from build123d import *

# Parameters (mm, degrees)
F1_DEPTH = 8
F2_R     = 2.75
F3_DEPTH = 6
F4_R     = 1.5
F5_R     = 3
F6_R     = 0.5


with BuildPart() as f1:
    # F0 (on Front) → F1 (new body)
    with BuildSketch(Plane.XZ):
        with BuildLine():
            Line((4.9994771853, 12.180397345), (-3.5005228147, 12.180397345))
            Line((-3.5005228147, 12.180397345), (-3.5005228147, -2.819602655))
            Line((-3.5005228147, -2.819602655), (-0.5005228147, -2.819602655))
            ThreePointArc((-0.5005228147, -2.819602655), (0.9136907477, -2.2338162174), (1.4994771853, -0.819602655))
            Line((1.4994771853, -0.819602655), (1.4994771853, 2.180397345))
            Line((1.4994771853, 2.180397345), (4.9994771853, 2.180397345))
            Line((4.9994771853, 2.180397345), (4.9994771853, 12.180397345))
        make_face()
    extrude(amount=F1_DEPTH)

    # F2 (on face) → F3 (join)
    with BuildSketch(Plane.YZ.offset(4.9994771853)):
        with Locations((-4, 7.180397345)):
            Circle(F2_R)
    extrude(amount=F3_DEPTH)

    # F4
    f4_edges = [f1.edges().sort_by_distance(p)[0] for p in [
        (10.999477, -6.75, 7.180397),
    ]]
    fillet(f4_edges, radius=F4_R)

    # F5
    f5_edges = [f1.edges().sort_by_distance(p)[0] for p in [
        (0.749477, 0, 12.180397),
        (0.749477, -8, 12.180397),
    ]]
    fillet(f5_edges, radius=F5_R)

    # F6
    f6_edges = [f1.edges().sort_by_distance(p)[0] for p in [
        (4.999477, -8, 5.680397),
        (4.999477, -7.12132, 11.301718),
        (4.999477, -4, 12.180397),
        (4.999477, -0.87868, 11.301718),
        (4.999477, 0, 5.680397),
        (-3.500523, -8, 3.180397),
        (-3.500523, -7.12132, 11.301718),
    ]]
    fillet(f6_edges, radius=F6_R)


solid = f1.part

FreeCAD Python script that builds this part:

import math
import FreeCAD as App
import Part
import Sketcher
from FreeCAD import Vector


def edges_at(feature, points):
    """Names of the edges that pass closest to the given points."""
    edges = feature.Shape.Edges
    near = lambda p: min(range(len(edges)), key=lambda i: edges[i].distToShape(Part.Vertex(*p))[0])
    return sorted({f"Edge{near(p) + 1}" for p in points})

doc = App.newDocument("Part")
body = doc.addObject("PartDesign::Body", "Body")

# Sketch on XZ plane
sketch1 = doc.addObject("Sketcher::SketchObject", "Sketch")
body.addObject(sketch1)
sketch1.AttachmentSupport = (doc.XZ_Plane, [""])
sketch1.MapMode = "FlatFace"
sketch1.addGeometry([
    Part.LineSegment(Vector(5, 12.2, 0), Vector(-3.5, 12.2, 0)),  # 0
    Part.LineSegment(Vector(-3.5, 12.2, 0), Vector(-3.5, -2.8, 0)),  # 1
    Part.LineSegment(Vector(-3.5, -2.8, 0), Vector(-0.5, -2.8, 0)),  # 2
    Part.ArcOfCircle(Part.Circle(Vector(-0.5, -0.8, 0), Vector(0, 0, 1), 2), math.radians(-90), math.radians(0)),  # 3
    Part.LineSegment(Vector(1.5, -0.8, 0), Vector(1.5, 2.2, 0)),  # 4
    Part.LineSegment(Vector(1.5, 2.2, 0), Vector(5, 2.2, 0)),  # 5
    Part.LineSegment(Vector(5, 2.2, 0), Vector(5, 12.2, 0)),  # 6
], False)
sketch1.addConstraint([
    Sketcher.Constraint("Coincident", 0, 2, 1, 1),
    Sketcher.Constraint("Coincident", 1, 2, 2, 1),
    Sketcher.Constraint("Tangent", 2, 2, 3, 1),
    Sketcher.Constraint("Tangent", 3, 2, 4, 1),
    Sketcher.Constraint("Coincident", 4, 2, 5, 1),
    Sketcher.Constraint("Coincident", 5, 2, 6, 1),
    Sketcher.Constraint("Coincident", 6, 2, 0, 1),
    Sketcher.Constraint("Horizontal", 0),
    Sketcher.Constraint("Vertical", 1),
    Sketcher.Constraint("Horizontal", 2),
    Sketcher.Constraint("Vertical", 4),
    Sketcher.Constraint("Horizontal", 5),
    Sketcher.Constraint("Vertical", 6),
    Sketcher.Constraint("Equal", 2, 4),
    Sketcher.Constraint("Radius", 3, 2.0),
    Sketcher.Constraint("DistanceX", 2, 1, 2, 2, 3.0),
    Sketcher.Constraint("DistanceY", 1, 2, 1, 1, 15.0),
    Sketcher.Constraint("DistanceX", 0, 2, 0, 1, 8.5),
    Sketcher.Constraint("DistanceX", 3, 3, -1, 1, 0.500523),
    Sketcher.Constraint("DistanceY", 3, 3, -1, 1, 0.819603),
])
pad1 = doc.addObject("PartDesign::Pad", "Pad")
body.addObject(pad1)
pad1.Profile = sketch1
pad1.Length = 8

# Sketch on YZ plane
sketch2 = doc.addObject("Sketcher::SketchObject", "Sketch001")
body.addObject(sketch2)
sketch2.AttachmentSupport = (doc.YZ_Plane, [""])
sketch2.MapMode = "FlatFace"
sketch2.AttachmentOffset = App.Placement(Vector(0, 0, 4.999477), App.Rotation())
sketch2.addGeometry(Part.Circle(Vector(-4, 7.2, 0), Vector(0, 0, 1), 2.8), False)
sketch2.addConstraint([
    Sketcher.Constraint("Diameter", 0, 5.5),
    Sketcher.Constraint("DistanceX", 0, 3, -1, 1, 4.0),
    Sketcher.Constraint("DistanceY", -1, 1, 0, 3, 7.180397),
])
pad2 = doc.addObject("PartDesign::Pad", "Pad001")
body.addObject(pad2)
pad2.Profile = sketch2
pad2.Length = 6
doc.recompute()

fillet = doc.addObject("PartDesign::Fillet", "Fillet")
body.addObject(fillet)
fillet.Base = (pad2, edges_at(pad2, [(10.999, -6.75, 7.18)]))
fillet.Radius = 1.5
doc.recompute()

fillet2 = doc.addObject("PartDesign::Fillet", "Fillet001")
body.addObject(fillet2)
fillet2.Base = (fillet, edges_at(fillet, [(0.749, 0, 12.18), (0.749, -8, 12.18)]))
fillet2.Radius = 3
doc.recompute()

fillet3 = doc.addObject("PartDesign::Fillet", "Fillet002")
body.addObject(fillet3)
fillet3.Base = (fillet2, edges_at(fillet2, [
    (4.999, -8, 5.68),
    (4.999, -7.121, 11.302),
    (4.999, -4, 12.18),
    (4.999, -0.879, 11.302),
    (4.999, 0, 5.68),
    (-3.501, -8, 3.18),
    (-3.501, -7.121, 11.302),
]))
fillet3.Radius = 0.5

doc.recompute()
